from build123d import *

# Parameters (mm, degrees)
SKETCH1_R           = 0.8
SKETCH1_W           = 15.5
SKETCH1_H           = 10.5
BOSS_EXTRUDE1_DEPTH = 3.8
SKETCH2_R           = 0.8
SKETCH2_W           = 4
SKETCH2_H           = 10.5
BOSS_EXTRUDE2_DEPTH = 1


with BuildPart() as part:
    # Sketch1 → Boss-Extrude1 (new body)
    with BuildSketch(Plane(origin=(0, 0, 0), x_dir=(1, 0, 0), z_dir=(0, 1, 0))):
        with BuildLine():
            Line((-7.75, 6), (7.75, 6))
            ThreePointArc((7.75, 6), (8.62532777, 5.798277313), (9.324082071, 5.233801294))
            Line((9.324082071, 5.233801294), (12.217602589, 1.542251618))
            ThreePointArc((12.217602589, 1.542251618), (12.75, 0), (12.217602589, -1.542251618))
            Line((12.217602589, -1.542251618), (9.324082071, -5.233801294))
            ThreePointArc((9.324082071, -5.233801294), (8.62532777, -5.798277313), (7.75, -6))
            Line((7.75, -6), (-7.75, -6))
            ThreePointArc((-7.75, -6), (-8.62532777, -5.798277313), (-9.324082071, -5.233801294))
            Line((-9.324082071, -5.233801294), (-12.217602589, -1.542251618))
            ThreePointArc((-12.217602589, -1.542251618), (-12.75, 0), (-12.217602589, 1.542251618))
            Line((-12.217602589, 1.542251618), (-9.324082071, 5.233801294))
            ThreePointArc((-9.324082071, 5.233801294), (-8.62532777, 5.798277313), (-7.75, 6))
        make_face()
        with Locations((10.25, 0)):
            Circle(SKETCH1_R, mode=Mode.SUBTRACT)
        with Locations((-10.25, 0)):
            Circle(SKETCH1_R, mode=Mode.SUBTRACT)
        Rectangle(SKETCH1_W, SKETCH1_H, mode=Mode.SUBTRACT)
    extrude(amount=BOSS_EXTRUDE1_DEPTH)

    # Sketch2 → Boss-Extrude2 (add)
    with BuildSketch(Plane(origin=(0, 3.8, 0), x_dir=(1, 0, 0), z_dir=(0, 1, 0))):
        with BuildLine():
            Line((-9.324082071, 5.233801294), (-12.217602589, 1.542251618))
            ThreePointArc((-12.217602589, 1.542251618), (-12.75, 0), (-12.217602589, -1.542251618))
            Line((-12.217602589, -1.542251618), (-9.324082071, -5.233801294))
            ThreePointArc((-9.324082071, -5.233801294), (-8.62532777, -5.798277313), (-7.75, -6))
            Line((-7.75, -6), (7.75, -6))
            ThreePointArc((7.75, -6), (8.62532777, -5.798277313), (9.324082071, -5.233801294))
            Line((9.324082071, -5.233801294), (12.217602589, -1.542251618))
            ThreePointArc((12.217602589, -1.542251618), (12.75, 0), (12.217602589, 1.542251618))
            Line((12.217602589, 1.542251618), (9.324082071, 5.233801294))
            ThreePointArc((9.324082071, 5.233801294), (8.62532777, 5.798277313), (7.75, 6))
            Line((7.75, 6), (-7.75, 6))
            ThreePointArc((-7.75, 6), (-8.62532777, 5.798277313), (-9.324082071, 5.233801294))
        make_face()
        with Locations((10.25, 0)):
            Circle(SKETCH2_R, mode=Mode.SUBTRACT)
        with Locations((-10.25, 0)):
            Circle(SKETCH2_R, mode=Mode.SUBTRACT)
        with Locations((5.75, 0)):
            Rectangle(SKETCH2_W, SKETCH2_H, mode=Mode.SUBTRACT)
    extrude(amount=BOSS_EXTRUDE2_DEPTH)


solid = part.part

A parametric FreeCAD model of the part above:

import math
import FreeCAD as App
import Part
import Sketcher
Q = App.Units.Quantity

doc = App.newDocument("Part")
params = doc.addObject("Spreadsheet::Sheet", "Params")
for row, (alias, value) in enumerate([
    ("sketch1_radius", "2 mm"),
    ("sketch1_diameter", "1.6 mm"),
    ("sketch1_radius2", "2.5 mm"),
    ("sketch1_width", "15.5 mm"),
    ("sketch1_height", "10.5 mm"),
    ("pad1_length", "3.8 mm"),
    ("sketch2_radius", "2 mm"),
    ("sketch2_diameter", "1.6 mm"),
    ("sketch2_radius2", "2.5 mm"),
    ("sketch2_width", "4 mm"),
    ("sketch2_width2", "15.5 mm"),
    ("pad2_length", "1 mm"),
], start=1):
    params.set(f"A{row}", alias)
    params.set(f"B{row}", "=" + value)
    params.setAlias(f"B{row}", alias)

body = doc.addObject("PartDesign::Body", "Body")

# Sketch on XZ plane
sketch1 = body.newObject("Sketcher::SketchObject", "Sketch")
sketch1.AttachmentSupport = (doc.getObject("XZ_Plane"), [""])
sketch1.MapMode = "FlatFace"
sketch1.addGeometry([
    Part.LineSegment(App.Vector(7.8, -6, 0), App.Vector(-7.8, -6, 0)),  # 0
    Part.ArcOfCircle(Part.Circle(App.Vector(-7.8, -4, 0), App.Vector(0, 0, 1), 2), math.radians(-142), math.radians(-90)),  # 1
    Part.LineSegment(App.Vector(-9.3, -5.2, 0), App.Vector(-12.2, -1.5, 0)),  # 2
    Part.ArcOfCircle(Part.Circle(App.Vector(-10.2, 0, 0), App.Vector(0, 0, 1), 2.5), math.radians(142), math.radians(218)),  # 3
    Part.LineSegment(App.Vector(-12.2, 1.5, 0), App.Vector(-9.3, 5.2, 0)),  # 4
    Part.ArcOfCircle(Part.Circle(App.Vector(-7.8, 4, 0), App.Vector(0, 0, 1), 2), math.radians(90), math.radians(142)),  # 5
    Part.LineSegment(App.Vector(-7.8, 6, 0), App.Vector(7.8, 6, 0)),  # 6
    Part.ArcOfCircle(Part.Circle(App.Vector(7.8, 4, 0), App.Vector(0, 0, 1), 2), math.radians(38), math.radians(90)),  # 7
    Part.LineSegment(App.Vector(9.3, 5.2, 0), App.Vector(12.2, 1.5, 0)),  # 8
    Part.ArcOfCircle(Part.Circle(App.Vector(10.2, 0, 0), App.Vector(0, 0, 1), 2.5), math.radians(-38), math.radians(38)),  # 9
    Part.LineSegment(App.Vector(12.2, -1.5, 0), App.Vector(9.3, -5.2, 0)),  # 10
    Part.ArcOfCircle(Part.Circle(App.Vector(7.8, -4, 0), App.Vector(0, 0, 1), 2), math.radians(-90), math.radians(-38)),  # 11
    Part.Circle(App.Vector(10.2, 0, 0), App.Vector(0, 0, 1), 0.8),  # 12
    Part.LineSegment(App.Vector(-7.8, 5.2, 0), App.Vector(-7.8, -5.2, 0)),  # 13
    Part.LineSegment(App.Vector(-7.8, -5.2, 0), App.Vector(7.8, -5.2, 0)),  # 14
    Part.LineSegment(App.Vector(7.8, -5.2, 0), App.Vector(7.8, 5.2, 0)),  # 15
    Part.LineSegment(App.Vector(7.8, 5.2, 0), App.Vector(-7.8, 5.2, 0)),  # 16
    Part.Circle(App.Vector(-10.2, 0, 0), App.Vector(0, 0, 1), 0.8),  # 17
], False)
sketch1.addConstraint([
    Sketcher.Constraint("Tangent", 0, 2, 1, 2),
    Sketcher.Constraint("Tangent", 1, 1, 2, 1),
    Sketcher.Constraint("Tangent", 2, 2, 3, 2),
    Sketcher.Constraint("Tangent", 3, 1, 4, 1),
    Sketcher.Constraint("Tangent", 4, 2, 5, 2),
    Sketcher.Constraint("Tangent", 5, 1, 6, 1),
    Sketcher.Constraint("Tangent", 6, 2, 7, 2),
    Sketcher.Constraint("Tangent", 7, 1, 8, 1),
    Sketcher.Constraint("Tangent", 8, 2, 9, 2),
    Sketcher.Constraint("Tangent", 9, 1, 10, 1),
    Sketcher.Constraint("Tangent", 10, 2, 11, 2),
    Sketcher.Constraint("Tangent", 11, 1, 0, 1),
    Sketcher.Constraint("Coincident", 13, 2, 14, 1),
    Sketcher.Constraint("Coincident", 14, 2, 15, 1),
    Sketcher.Constraint("Coincident", 15, 2, 16, 1),
    Sketcher.Constraint("Coincident", 16, 2, 13, 1),
    Sketcher.Constraint("Horizontal", 0),
    Sketcher.Constraint("Horizontal", 6),
    Sketcher.Constraint("Vertical", 13),
    Sketcher.Constraint("Horizontal", 14),
    Sketcher.Constraint("Vertical", 15),
    Sketcher.Constraint("Horizontal", 16),
    Sketcher.Constraint("Coincident", 12, 3, 9, 3),
    Sketcher.Constraint("Coincident", 17, 3, 3, 3),
    Sketcher.Constraint("Equal", 1, 5),
    Sketcher.Constraint("Equal", 5, 7),
    Sketcher.Constraint("Equal", 3, 9),
    Sketcher.Constraint("Equal", 7, 11),
    Sketcher.Constraint("Equal", 12, 17),
    Sketcher.Constraint("Symmetric", 1, 3, 7, 3, -1, 1),
    Sketcher.Constraint("Symmetric", 3, 3, 9, 3, -1, 1),
    Sketcher.Constraint("Symmetric", 13, 2, 15, 2, -1, 1),
    Sketcher.Constraint("Symmetric", 4, 2, 7, 1, -2),
    Sketcher.Constraint("Parallel", 4, 10),
    Sketcher.Constraint("Vertical", 5, 1, 13, 2),
    Sketcher.Constraint("Radius", 1, Q("2 mm")),
    Sketcher.Constraint("Diameter", 12, Q("1.6 mm")),
    Sketcher.Constraint("Radius", 3, Q("2.5 mm")),
    Sketcher.Constraint("DistanceX", 0, 2, 0, 1, Q("15.5 mm")),
    Sketcher.Constraint("DistanceY", 13, 2, 13, 1, Q("10.5 mm")),
    Sketcher.Constraint("DistanceY", 1, 3, -1, 1, Q("4 mm")),
    Sketcher.Constraint("DistanceX", 3, 3, 7, 3, Q("18 mm")),
])
sketch1.setExpression("Constraints[35]", "Params.sketch1_radius")
sketch1.setExpression("Constraints[36]", "Params.sketch1_diameter")
sketch1.setExpression("Constraints[37]", "Params.sketch1_radius2")
sketch1.setExpression("Constraints[38]", "Params.sketch1_width")
sketch1.setExpression("Constraints[39]", "Params.sketch1_height")
pad1 = body.newObject("PartDesign::Pad", "Pad")
pad1.Profile = sketch1
pad1.setExpression("Length", "Params.pad1_length")
pad1.Reversed = True

# Sketch on XZ plane
sketch2 = body.newObject("Sketcher::SketchObject", "Sketch001")
sketch2.AttachmentSupport = (doc.getObject("XZ_Plane"), [""])
sketch2.MapMode = "FlatFace"
sketch2.AttachmentOffset = App.Placement(App.Vector(0, 0, -3.8), App.Rotation())
sketch2.addGeometry([
    Part.LineSegment(App.Vector(-9.3, -5.2, 0), App.Vector(-12.2, -1.5, 0)),  # 0
    Part.ArcOfCircle(Part.Circle(App.Vector(-10.2, 0, 0), App.Vector(0, 0, 1), 2.5), math.radians(142), math.radians(218)),  # 1
    Part.LineSegment(App.Vector(-12.2, 1.5, 0), App.Vector(-9.3, 5.2, 0)),  # 2
    Part.ArcOfCircle(Part.Circle(App.Vector(-7.8, 4, 0), App.Vector(0, 0, 1), 2), math.radians(90), math.radians(142)),  # 3
    Part.LineSegment(App.Vector(-7.8, 6, 0), App.Vector(7.8, 6, 0)),  # 4
    Part.ArcOfCircle(Part.Circle(App.Vector(7.8, 4, 0), App.Vector(0, 0, 1), 2), math.radians(38), math.radians(90)),  # 5
    Part.LineSegment(App.Vector(9.3, 5.2, 0), App.Vector(12.2, 1.5, 0)),  # 6
    Part.ArcOfCircle(Part.Circle(App.Vector(10.2, 0, 0), App.Vector(0, 0, 1), 2.5), math.radians(-38), math.radians(38)),  # 7
    Part.LineSegment(App.Vector(12.2, -1.5, 0), App.Vector(9.3, -5.2, 0)),  # 8
    Part.ArcOfCircle(Part.Circle(App.Vector(7.8, -4, 0), App.Vector(0, 0, 1), 2), math.radians(-90), math.radians(-38)),  # 9
    Part.LineSegment(App.Vector(7.8, -6, 0), App.Vector(-7.8, -6, 0)),  # 10
    Part.ArcOfCircle(Part.Circle(App.Vector(-7.8, -4, 0), App.Vector(0, 0, 1), 2), math.radians(-142), math.radians(-90)),  # 11
    Part.Circle(App.Vector(-10.2, 0, 0), App.Vector(0, 0, 1), 0.8),  # 12
    Part.LineSegment(App.Vector(7.8, 5.2, 0), App.Vector(3.8, 5.2, 0)),  # 13
    Part.LineSegment(App.Vector(3.8, 5.2, 0), App.Vector(3.8, -5.2, 0)),  # 14
    Part.LineSegment(App.Vector(3.8, -5.2, 0), App.Vector(7.8, -5.2, 0)),  # 15
    Part.LineSegment(App.Vector(7.8, -5.2, 0), App.Vector(7.8, 5.2, 0)),  # 16
    Part.Circle(App.Vector(10.2, 0, 0), App.Vector(0, 0, 1), 0.8),  # 17
], False)
sketch2.addConstraint([
    Sketcher.Constraint("Tangent", 0, 2, 1, 2),
    Sketcher.Constraint("Tangent", 1, 1, 2, 1),
    Sketcher.Constraint("Tangent", 2, 2, 3, 2),
    Sketcher.Constraint("Tangent", 3, 1, 4, 1),
    Sketcher.Constraint("Tangent", 4, 2, 5, 2),
    Sketcher.Constraint("Tangent", 5, 1, 6, 1),
    Sketcher.Constraint("Tangent", 6, 2, 7, 2),
    Sketcher.Constraint("Tangent", 7, 1, 8, 1),
    Sketcher.Constraint("Tangent", 8, 2, 9, 2),
    Sketcher.Constraint("Tangent", 9, 1, 10, 1),
    Sketcher.Constraint("Tangent", 10, 2, 11, 2),
    Sketcher.Constraint("Tangent", 11, 1, 0, 1),
    Sketcher.Constraint("Coincident", 13, 2, 14, 1),
    Sketcher.Constraint("Coincident", 14, 2, 15, 1),
    Sketcher.Constraint("Coincident", 15, 2, 16, 1),
    Sketcher.Constraint("Coincident", 16, 2, 13, 1),
    Sketcher.Constraint("Horizontal", 4),
    Sketcher.Constraint("Horizontal", 10),
    Sketcher.Constraint("Horizontal", 13),
    Sketcher.Constraint("Vertical", 14),
    Sketcher.Constraint("Horizontal", 15),
    Sketcher.Constraint("Vertical", 16),
    Sketcher.Constraint("Coincident", 12, 3, 1, 3),
    Sketcher.Constraint("Coincident", 17, 3, 7, 3),
    Sketcher.Constraint("Equal", 3, 5),
    Sketcher.Constraint("Equal", 1, 7),
    Sketcher.Constraint("Equal", 5, 9),
    Sketcher.Constraint("Equal", 9, 11),
    Sketcher.Constraint("Equal", 12, 17),
    Sketcher.Constraint("Symmetric", 1, 3, 7, 3, -1, 1),
    Sketcher.Constraint("Symmetric", 3, 3, 9, 3, -1, 1),
    Sketcher.Constraint("Symmetric", 2, 2, 5, 1, -2),
    Sketcher.Constraint("Parallel", 0, 6),
    Sketcher.Constraint("Vertical", 9, 1, 15, 2),
    Sketcher.Constraint("Radius", 3, Q("2 mm")),
    Sketcher.Constraint("Diameter", 12, Q("1.6 mm")),
    Sketcher.Constraint("Radius", 1, Q("2.5 mm")),
    Sketcher.Constraint("DistanceX", 13, 2, 13, 1, Q("4 mm")),
    Sketcher.Constraint("DistanceX", 4, 1, 4, 2, Q("15.5 mm")),
    Sketcher.Constraint("DistanceY", 14, 2, 14, 1, Q("10.5 mm")),
    Sketcher.Constraint("DistanceY", -1, 1, 3, 3, Q("4 mm")),
    Sketcher.Constraint("DistanceX", 1, 3, 5, 3, Q("18 mm")),
    Sketcher.Constraint("DistanceY", -1, 1, 13, 2, Q("5.25 mm")),
])
sketch2.setExpression("Constraints[34]", "Params.sketch2_radius")
sketch2.setExpression("Constraints[35]", "Params.sketch2_diameter")
sketch2.setExpression("Constraints[36]", "Params.sketch2_radius2")
sketch2.setExpression("Constraints[37]", "Params.sketch2_width")
sketch2.setExpression("Constraints[38]", "Params.sketch2_width2")
pad2 = body.newObject("PartDesign::Pad", "Pad001")
pad2.Profile = sketch2
pad2.setExpression("Length", "Params.pad2_length")
pad2.Reversed = True

doc.recompute()
